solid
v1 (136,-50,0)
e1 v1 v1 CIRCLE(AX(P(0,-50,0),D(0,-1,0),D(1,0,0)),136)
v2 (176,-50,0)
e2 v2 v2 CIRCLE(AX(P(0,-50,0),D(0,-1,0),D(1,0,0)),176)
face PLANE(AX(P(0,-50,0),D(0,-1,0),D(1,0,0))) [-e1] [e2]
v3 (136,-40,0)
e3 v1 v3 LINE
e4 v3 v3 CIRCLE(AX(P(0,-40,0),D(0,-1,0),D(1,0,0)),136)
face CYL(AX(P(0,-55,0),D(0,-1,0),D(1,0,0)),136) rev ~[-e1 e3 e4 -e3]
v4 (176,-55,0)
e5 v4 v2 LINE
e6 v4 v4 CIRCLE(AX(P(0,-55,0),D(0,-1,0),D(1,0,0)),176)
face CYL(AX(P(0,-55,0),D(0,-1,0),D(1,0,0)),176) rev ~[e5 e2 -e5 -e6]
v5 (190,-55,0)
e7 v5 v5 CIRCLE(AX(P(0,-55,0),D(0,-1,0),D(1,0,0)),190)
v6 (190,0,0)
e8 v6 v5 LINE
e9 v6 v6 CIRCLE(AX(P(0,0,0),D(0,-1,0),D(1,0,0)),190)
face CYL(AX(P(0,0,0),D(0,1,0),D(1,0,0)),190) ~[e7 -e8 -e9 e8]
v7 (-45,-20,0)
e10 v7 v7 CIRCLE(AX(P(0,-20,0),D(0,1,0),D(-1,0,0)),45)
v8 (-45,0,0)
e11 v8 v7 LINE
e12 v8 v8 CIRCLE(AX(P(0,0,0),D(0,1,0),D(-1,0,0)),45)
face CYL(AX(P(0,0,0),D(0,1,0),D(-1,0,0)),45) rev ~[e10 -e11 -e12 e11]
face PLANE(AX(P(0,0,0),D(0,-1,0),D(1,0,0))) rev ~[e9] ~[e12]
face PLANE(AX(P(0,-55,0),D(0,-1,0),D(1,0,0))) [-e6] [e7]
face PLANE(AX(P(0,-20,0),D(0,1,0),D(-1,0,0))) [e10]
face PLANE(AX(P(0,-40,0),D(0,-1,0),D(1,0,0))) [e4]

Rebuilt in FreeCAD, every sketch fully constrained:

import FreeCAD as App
import Part
import Sketcher
from FreeCAD import Vector

doc = App.newDocument("Part")
params = doc.addObject("Spreadsheet::Sheet", "Params")
for row, (alias, value) in enumerate([
    ("sketch1_diameter", "380 mm"),
    ("pad1_length", "55 mm"),
    ("sketch2_diameter", "90 mm"),
    ("pocket1_length", "20 mm"),
    ("sketch3_diameter", "352 mm"),
    ("sketch3_diameter2", "272 mm"),
    ("pocket2_length", "5 mm"),
    ("sketch4_diameter", "272 mm"),
    ("pocket3_length", "15 mm"),
], start=1):
    params.set(f"A{row}", alias)
    params.set(f"B{row}", "=" + value)
    params.setAlias(f"B{row}", alias)

body = doc.addObject("PartDesign::Body", "Body")

# Sketch on XZ plane
sketch1 = body.newObject("Sketcher::SketchObject", "Sketch")
sketch1.AttachmentSupport = (doc.getObject("XZ_Plane"), [""])
sketch1.MapMode = "FlatFace"
sketch1.addGeometry(Part.Circle(Vector(0, 0, 0), Vector(0, 0, 1), 190), False)
sketch1.addConstraint(Sketcher.Constraint("Coincident", 0, 3, -1, 1))
sketch1.addConstraint(Sketcher.Constraint("Diameter", 0, 380.0))
sketch1.setExpression("Constraints[1]", "Params.sketch1_diameter")
pad1 = body.newObject("PartDesign::Pad", "Pad")
pad1.Profile = sketch1
pad1.setExpression("Length", "Params.pad1_length")

# Sketch on XZ plane
sketch2 = body.newObject("Sketcher::SketchObject", "Sketch001")
sketch2.AttachmentSupport = (doc.getObject("XZ_Plane"), [""])
sketch2.MapMode = "FlatFace"
sketch2.addGeometry(Part.Circle(Vector(0, 0, 0), Vector(0, 0, 1), 45), False)
sketch2.addConstraint(Sketcher.Constraint("Coincident", 0, 3, -1, 1))
sketch2.addConstraint(Sketcher.Constraint("Diameter", 0, 90.0))
sketch2.setExpression("Constraints[1]", "Params.sketch2_diameter")
pocket1 = body.newObject("PartDesign::Pocket", "Pocket")
pocket1.Profile = sketch2
pocket1.setExpression("Length", "Params.pocket1_length")
pocket1.Reversed = True

# Sketch on XZ plane
sketch3 = body.newObject("Sketcher::SketchObject", "Sketch002")
sketch3.AttachmentSupport = (doc.getObject("XZ_Plane"), [""])
sketch3.MapMode = "FlatFace"
sketch3.AttachmentOffset = App.Placement(Vector(0, 0, 55), App.Rotation())
sketch3.addGeometry(Part.Circle(Vector(0, 0, 0), Vector(0, 0, 1), 176), False)
sketch3.addGeometry(Part.Circle(Vector(0, 0, 0), Vector(0, 0, 1), 136), False)
sketch3.addConstraint(Sketcher.Constraint("Coincident", 0, 3, -1, 1))
sketch3.addConstraint(Sketcher.Constraint("Coincident", 1, 3, -1, 1))
sketch3.addConstraint(Sketcher.Constraint("Diameter", 0, 352.0))
sketch3.addConstraint(Sketcher.Constraint("Diameter", 1, 272.0))
sketch3.setExpression("Constraints[2]", "Params.sketch3_diameter")
sketch3.setExpression("Constraints[3]", "Params.sketch3_diameter2")
pocket2 = body.newObject("PartDesign::Pocket", "Pocket001")
pocket2.Profile = sketch3
pocket2.setExpression("Length", "Params.pocket2_length")

# Sketch on XZ plane
sketch4 = body.newObject("Sketcher::SketchObject", "Sketch003")
sketch4.AttachmentSupport = (doc.getObject("XZ_Plane"), [""])
sketch4.MapMode = "FlatFace"
sketch4.AttachmentOffset = App.Placement(Vector(0, 0, 55), App.Rotation())
sketch4.addGeometry(Part.Circle(Vector(0, 0, 0), Vector(0, 0, 1), 136), False)
sketch4.addConstraint(Sketcher.Constraint("Coincident", 0, 3, -1, 1))
sketch4.addConstraint(Sketcher.Constraint("Diameter", 0, 272.0))
sketch4.setExpression("Constraints[1]", "Params.sketch4_diameter")
pocket3 = body.newObject("PartDesign::Pocket", "Pocket002")
pocket3.Profile = sketch4
pocket3.setExpression("Length", "Params.pocket3_length")

doc.recompute()
